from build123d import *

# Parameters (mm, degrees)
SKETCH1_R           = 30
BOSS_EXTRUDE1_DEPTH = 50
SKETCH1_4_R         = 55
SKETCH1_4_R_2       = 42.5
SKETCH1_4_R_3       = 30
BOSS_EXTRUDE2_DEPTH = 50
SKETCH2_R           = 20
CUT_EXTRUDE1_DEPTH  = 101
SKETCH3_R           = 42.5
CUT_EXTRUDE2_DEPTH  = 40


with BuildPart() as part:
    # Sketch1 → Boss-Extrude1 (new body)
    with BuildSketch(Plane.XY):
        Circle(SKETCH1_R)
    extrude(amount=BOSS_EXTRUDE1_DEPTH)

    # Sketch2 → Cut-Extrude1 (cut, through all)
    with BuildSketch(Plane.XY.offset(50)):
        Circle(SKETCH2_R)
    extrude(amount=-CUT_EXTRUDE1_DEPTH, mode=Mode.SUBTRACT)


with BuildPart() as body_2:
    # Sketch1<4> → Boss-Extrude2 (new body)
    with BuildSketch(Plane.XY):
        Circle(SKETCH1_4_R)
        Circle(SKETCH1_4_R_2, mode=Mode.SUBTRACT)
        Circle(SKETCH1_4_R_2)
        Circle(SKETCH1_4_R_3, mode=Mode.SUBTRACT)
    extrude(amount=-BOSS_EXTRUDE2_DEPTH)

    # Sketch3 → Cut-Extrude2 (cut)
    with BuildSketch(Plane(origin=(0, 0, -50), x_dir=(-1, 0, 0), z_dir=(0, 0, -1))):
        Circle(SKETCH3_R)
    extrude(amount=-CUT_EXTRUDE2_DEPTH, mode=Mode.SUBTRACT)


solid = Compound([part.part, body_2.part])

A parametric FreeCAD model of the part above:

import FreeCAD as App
import Part
import Sketcher

V = App.Vector

doc = App.newDocument("Part")
params = doc.addObject("Spreadsheet::Sheet", "Params")
for row, (alias, value) in enumerate([
    ("sketch1_diameter", "60 mm"),
    ("pad1_length", "50 mm"),
    ("sketch2_diameter", "40 mm"),
    ("sketch3_diameter", "110 mm"),
    ("sketch3_diameter2", "60 mm"),
    ("pad2_length", "50 mm"),
    ("sketch4_diameter", "85 mm"),
    ("pocket2_length", "40 mm"),
], start=1):
    params.set(f"A{row}", alias)
    params.set(f"B{row}", "=" + value)
    params.setAlias(f"B{row}", alias)

body = doc.addObject("PartDesign::Body", "Body")

sketch1 = doc.addObject("Sketcher::SketchObject", "Sketch")
body.addObject(sketch1)
sketch1.AttachmentSupport = (doc.XY_Plane, [""])
sketch1.MapMode = "FlatFace"
sketch1.addGeometry(Part.Circle(V(0, 0, 0), V(0, 0, 1), 30), False)
sketch1.addConstraint([
    Sketcher.Constraint("Coincident", 0, 3, -1, 1),
    Sketcher.Constraint("Diameter", 0, 60.0),
])
sketch1.setExpression("Constraints[1]", "Params.sketch1_diameter")
pad1 = doc.addObject("PartDesign::Pad", "Pad")
body.addObject(pad1)
pad1.Profile = sketch1
pad1.setExpression("Length", "Params.pad1_length")

sketch2 = doc.addObject("Sketcher::SketchObject", "Sketch001")
body.addObject(sketch2)
sketch2.AttachmentSupport = (doc.XY_Plane, [""])
sketch2.MapMode = "FlatFace"
sketch2.AttachmentOffset = App.Placement(V(0, 0, 50), App.Rotation())
sketch2.addGeometry(Part.Circle(V(0, 0, 0), V(0, 0, 1), 20), False)
sketch2.addConstraint([
    Sketcher.Constraint("Coincident", 0, 3, -1, 1),
    Sketcher.Constraint("Diameter", 0, 40.0),
])
sketch2.setExpression("Constraints[1]", "Params.sketch2_diameter")
pocket1 = doc.addObject("PartDesign::Pocket", "Pocket")
body.addObject(pocket1)
pocket1.Profile = sketch2
pocket1.Type = "ThroughAll"
body2 = doc.addObject("PartDesign::Body", "Body001")

sketch3 = doc.addObject("Sketcher::SketchObject", "Sketch002")
body2.addObject(sketch3)
sketch3.AttachmentSupport = (doc.getObject("XY_Plane001"), [""])
sketch3.MapMode = "FlatFace"
sketch3.addGeometry([
    Part.Circle(V(0, 0, 0), V(0, 0, 1), 55),
    Part.Circle(V(0, 0, 0), V(0, 0, 1), 30),
], False)
sketch3.addConstraint([
    Sketcher.Constraint("Coincident", 0, 3, -1, 1),
    Sketcher.Constraint("Coincident", 1, 3, -1, 1),
    Sketcher.Constraint("Diameter", 0, 110.0),
    Sketcher.Constraint("Diameter", 1, 60.0),
])
sketch3.setExpression("Constraints[2]", "Params.sketch3_diameter")
sketch3.setExpression("Constraints[3]", "Params.sketch3_diameter2")
pad2 = doc.addObject("PartDesign::Pad", "Pad001")
body2.addObject(pad2)
pad2.Profile = sketch3
pad2.setExpression("Length", "Params.pad2_length")
pad2.Reversed = True

sketch4 = doc.addObject("Sketcher::SketchObject", "Sketch003")
body2.addObject(sketch4)
sketch4.AttachmentSupport = (doc.getObject("XY_Plane001"), [""])
sketch4.MapMode = "FlatFace"
sketch4.AttachmentOffset = App.Placement(V(0, 0, -50), App.Rotation())
sketch4.addGeometry(Part.Circle(V(0, 0, 0), V(0, 0, 1), 42), False)
sketch4.addConstraint([
    Sketcher.Constraint("Coincident", 0, 3, -1, 1),
    Sketcher.Constraint("Diameter", 0, 85.0),
])
sketch4.setExpression("Constraints[1]", "Params.sketch4_diameter")
pocket2 = doc.addObject("PartDesign::Pocket", "Pocket001")
body2.addObject(pocket2)
pocket2.Profile = sketch4
pocket2.setExpression("Length", "Params.pocket2_length")
pocket2.Reversed = True

doc.recompute()
